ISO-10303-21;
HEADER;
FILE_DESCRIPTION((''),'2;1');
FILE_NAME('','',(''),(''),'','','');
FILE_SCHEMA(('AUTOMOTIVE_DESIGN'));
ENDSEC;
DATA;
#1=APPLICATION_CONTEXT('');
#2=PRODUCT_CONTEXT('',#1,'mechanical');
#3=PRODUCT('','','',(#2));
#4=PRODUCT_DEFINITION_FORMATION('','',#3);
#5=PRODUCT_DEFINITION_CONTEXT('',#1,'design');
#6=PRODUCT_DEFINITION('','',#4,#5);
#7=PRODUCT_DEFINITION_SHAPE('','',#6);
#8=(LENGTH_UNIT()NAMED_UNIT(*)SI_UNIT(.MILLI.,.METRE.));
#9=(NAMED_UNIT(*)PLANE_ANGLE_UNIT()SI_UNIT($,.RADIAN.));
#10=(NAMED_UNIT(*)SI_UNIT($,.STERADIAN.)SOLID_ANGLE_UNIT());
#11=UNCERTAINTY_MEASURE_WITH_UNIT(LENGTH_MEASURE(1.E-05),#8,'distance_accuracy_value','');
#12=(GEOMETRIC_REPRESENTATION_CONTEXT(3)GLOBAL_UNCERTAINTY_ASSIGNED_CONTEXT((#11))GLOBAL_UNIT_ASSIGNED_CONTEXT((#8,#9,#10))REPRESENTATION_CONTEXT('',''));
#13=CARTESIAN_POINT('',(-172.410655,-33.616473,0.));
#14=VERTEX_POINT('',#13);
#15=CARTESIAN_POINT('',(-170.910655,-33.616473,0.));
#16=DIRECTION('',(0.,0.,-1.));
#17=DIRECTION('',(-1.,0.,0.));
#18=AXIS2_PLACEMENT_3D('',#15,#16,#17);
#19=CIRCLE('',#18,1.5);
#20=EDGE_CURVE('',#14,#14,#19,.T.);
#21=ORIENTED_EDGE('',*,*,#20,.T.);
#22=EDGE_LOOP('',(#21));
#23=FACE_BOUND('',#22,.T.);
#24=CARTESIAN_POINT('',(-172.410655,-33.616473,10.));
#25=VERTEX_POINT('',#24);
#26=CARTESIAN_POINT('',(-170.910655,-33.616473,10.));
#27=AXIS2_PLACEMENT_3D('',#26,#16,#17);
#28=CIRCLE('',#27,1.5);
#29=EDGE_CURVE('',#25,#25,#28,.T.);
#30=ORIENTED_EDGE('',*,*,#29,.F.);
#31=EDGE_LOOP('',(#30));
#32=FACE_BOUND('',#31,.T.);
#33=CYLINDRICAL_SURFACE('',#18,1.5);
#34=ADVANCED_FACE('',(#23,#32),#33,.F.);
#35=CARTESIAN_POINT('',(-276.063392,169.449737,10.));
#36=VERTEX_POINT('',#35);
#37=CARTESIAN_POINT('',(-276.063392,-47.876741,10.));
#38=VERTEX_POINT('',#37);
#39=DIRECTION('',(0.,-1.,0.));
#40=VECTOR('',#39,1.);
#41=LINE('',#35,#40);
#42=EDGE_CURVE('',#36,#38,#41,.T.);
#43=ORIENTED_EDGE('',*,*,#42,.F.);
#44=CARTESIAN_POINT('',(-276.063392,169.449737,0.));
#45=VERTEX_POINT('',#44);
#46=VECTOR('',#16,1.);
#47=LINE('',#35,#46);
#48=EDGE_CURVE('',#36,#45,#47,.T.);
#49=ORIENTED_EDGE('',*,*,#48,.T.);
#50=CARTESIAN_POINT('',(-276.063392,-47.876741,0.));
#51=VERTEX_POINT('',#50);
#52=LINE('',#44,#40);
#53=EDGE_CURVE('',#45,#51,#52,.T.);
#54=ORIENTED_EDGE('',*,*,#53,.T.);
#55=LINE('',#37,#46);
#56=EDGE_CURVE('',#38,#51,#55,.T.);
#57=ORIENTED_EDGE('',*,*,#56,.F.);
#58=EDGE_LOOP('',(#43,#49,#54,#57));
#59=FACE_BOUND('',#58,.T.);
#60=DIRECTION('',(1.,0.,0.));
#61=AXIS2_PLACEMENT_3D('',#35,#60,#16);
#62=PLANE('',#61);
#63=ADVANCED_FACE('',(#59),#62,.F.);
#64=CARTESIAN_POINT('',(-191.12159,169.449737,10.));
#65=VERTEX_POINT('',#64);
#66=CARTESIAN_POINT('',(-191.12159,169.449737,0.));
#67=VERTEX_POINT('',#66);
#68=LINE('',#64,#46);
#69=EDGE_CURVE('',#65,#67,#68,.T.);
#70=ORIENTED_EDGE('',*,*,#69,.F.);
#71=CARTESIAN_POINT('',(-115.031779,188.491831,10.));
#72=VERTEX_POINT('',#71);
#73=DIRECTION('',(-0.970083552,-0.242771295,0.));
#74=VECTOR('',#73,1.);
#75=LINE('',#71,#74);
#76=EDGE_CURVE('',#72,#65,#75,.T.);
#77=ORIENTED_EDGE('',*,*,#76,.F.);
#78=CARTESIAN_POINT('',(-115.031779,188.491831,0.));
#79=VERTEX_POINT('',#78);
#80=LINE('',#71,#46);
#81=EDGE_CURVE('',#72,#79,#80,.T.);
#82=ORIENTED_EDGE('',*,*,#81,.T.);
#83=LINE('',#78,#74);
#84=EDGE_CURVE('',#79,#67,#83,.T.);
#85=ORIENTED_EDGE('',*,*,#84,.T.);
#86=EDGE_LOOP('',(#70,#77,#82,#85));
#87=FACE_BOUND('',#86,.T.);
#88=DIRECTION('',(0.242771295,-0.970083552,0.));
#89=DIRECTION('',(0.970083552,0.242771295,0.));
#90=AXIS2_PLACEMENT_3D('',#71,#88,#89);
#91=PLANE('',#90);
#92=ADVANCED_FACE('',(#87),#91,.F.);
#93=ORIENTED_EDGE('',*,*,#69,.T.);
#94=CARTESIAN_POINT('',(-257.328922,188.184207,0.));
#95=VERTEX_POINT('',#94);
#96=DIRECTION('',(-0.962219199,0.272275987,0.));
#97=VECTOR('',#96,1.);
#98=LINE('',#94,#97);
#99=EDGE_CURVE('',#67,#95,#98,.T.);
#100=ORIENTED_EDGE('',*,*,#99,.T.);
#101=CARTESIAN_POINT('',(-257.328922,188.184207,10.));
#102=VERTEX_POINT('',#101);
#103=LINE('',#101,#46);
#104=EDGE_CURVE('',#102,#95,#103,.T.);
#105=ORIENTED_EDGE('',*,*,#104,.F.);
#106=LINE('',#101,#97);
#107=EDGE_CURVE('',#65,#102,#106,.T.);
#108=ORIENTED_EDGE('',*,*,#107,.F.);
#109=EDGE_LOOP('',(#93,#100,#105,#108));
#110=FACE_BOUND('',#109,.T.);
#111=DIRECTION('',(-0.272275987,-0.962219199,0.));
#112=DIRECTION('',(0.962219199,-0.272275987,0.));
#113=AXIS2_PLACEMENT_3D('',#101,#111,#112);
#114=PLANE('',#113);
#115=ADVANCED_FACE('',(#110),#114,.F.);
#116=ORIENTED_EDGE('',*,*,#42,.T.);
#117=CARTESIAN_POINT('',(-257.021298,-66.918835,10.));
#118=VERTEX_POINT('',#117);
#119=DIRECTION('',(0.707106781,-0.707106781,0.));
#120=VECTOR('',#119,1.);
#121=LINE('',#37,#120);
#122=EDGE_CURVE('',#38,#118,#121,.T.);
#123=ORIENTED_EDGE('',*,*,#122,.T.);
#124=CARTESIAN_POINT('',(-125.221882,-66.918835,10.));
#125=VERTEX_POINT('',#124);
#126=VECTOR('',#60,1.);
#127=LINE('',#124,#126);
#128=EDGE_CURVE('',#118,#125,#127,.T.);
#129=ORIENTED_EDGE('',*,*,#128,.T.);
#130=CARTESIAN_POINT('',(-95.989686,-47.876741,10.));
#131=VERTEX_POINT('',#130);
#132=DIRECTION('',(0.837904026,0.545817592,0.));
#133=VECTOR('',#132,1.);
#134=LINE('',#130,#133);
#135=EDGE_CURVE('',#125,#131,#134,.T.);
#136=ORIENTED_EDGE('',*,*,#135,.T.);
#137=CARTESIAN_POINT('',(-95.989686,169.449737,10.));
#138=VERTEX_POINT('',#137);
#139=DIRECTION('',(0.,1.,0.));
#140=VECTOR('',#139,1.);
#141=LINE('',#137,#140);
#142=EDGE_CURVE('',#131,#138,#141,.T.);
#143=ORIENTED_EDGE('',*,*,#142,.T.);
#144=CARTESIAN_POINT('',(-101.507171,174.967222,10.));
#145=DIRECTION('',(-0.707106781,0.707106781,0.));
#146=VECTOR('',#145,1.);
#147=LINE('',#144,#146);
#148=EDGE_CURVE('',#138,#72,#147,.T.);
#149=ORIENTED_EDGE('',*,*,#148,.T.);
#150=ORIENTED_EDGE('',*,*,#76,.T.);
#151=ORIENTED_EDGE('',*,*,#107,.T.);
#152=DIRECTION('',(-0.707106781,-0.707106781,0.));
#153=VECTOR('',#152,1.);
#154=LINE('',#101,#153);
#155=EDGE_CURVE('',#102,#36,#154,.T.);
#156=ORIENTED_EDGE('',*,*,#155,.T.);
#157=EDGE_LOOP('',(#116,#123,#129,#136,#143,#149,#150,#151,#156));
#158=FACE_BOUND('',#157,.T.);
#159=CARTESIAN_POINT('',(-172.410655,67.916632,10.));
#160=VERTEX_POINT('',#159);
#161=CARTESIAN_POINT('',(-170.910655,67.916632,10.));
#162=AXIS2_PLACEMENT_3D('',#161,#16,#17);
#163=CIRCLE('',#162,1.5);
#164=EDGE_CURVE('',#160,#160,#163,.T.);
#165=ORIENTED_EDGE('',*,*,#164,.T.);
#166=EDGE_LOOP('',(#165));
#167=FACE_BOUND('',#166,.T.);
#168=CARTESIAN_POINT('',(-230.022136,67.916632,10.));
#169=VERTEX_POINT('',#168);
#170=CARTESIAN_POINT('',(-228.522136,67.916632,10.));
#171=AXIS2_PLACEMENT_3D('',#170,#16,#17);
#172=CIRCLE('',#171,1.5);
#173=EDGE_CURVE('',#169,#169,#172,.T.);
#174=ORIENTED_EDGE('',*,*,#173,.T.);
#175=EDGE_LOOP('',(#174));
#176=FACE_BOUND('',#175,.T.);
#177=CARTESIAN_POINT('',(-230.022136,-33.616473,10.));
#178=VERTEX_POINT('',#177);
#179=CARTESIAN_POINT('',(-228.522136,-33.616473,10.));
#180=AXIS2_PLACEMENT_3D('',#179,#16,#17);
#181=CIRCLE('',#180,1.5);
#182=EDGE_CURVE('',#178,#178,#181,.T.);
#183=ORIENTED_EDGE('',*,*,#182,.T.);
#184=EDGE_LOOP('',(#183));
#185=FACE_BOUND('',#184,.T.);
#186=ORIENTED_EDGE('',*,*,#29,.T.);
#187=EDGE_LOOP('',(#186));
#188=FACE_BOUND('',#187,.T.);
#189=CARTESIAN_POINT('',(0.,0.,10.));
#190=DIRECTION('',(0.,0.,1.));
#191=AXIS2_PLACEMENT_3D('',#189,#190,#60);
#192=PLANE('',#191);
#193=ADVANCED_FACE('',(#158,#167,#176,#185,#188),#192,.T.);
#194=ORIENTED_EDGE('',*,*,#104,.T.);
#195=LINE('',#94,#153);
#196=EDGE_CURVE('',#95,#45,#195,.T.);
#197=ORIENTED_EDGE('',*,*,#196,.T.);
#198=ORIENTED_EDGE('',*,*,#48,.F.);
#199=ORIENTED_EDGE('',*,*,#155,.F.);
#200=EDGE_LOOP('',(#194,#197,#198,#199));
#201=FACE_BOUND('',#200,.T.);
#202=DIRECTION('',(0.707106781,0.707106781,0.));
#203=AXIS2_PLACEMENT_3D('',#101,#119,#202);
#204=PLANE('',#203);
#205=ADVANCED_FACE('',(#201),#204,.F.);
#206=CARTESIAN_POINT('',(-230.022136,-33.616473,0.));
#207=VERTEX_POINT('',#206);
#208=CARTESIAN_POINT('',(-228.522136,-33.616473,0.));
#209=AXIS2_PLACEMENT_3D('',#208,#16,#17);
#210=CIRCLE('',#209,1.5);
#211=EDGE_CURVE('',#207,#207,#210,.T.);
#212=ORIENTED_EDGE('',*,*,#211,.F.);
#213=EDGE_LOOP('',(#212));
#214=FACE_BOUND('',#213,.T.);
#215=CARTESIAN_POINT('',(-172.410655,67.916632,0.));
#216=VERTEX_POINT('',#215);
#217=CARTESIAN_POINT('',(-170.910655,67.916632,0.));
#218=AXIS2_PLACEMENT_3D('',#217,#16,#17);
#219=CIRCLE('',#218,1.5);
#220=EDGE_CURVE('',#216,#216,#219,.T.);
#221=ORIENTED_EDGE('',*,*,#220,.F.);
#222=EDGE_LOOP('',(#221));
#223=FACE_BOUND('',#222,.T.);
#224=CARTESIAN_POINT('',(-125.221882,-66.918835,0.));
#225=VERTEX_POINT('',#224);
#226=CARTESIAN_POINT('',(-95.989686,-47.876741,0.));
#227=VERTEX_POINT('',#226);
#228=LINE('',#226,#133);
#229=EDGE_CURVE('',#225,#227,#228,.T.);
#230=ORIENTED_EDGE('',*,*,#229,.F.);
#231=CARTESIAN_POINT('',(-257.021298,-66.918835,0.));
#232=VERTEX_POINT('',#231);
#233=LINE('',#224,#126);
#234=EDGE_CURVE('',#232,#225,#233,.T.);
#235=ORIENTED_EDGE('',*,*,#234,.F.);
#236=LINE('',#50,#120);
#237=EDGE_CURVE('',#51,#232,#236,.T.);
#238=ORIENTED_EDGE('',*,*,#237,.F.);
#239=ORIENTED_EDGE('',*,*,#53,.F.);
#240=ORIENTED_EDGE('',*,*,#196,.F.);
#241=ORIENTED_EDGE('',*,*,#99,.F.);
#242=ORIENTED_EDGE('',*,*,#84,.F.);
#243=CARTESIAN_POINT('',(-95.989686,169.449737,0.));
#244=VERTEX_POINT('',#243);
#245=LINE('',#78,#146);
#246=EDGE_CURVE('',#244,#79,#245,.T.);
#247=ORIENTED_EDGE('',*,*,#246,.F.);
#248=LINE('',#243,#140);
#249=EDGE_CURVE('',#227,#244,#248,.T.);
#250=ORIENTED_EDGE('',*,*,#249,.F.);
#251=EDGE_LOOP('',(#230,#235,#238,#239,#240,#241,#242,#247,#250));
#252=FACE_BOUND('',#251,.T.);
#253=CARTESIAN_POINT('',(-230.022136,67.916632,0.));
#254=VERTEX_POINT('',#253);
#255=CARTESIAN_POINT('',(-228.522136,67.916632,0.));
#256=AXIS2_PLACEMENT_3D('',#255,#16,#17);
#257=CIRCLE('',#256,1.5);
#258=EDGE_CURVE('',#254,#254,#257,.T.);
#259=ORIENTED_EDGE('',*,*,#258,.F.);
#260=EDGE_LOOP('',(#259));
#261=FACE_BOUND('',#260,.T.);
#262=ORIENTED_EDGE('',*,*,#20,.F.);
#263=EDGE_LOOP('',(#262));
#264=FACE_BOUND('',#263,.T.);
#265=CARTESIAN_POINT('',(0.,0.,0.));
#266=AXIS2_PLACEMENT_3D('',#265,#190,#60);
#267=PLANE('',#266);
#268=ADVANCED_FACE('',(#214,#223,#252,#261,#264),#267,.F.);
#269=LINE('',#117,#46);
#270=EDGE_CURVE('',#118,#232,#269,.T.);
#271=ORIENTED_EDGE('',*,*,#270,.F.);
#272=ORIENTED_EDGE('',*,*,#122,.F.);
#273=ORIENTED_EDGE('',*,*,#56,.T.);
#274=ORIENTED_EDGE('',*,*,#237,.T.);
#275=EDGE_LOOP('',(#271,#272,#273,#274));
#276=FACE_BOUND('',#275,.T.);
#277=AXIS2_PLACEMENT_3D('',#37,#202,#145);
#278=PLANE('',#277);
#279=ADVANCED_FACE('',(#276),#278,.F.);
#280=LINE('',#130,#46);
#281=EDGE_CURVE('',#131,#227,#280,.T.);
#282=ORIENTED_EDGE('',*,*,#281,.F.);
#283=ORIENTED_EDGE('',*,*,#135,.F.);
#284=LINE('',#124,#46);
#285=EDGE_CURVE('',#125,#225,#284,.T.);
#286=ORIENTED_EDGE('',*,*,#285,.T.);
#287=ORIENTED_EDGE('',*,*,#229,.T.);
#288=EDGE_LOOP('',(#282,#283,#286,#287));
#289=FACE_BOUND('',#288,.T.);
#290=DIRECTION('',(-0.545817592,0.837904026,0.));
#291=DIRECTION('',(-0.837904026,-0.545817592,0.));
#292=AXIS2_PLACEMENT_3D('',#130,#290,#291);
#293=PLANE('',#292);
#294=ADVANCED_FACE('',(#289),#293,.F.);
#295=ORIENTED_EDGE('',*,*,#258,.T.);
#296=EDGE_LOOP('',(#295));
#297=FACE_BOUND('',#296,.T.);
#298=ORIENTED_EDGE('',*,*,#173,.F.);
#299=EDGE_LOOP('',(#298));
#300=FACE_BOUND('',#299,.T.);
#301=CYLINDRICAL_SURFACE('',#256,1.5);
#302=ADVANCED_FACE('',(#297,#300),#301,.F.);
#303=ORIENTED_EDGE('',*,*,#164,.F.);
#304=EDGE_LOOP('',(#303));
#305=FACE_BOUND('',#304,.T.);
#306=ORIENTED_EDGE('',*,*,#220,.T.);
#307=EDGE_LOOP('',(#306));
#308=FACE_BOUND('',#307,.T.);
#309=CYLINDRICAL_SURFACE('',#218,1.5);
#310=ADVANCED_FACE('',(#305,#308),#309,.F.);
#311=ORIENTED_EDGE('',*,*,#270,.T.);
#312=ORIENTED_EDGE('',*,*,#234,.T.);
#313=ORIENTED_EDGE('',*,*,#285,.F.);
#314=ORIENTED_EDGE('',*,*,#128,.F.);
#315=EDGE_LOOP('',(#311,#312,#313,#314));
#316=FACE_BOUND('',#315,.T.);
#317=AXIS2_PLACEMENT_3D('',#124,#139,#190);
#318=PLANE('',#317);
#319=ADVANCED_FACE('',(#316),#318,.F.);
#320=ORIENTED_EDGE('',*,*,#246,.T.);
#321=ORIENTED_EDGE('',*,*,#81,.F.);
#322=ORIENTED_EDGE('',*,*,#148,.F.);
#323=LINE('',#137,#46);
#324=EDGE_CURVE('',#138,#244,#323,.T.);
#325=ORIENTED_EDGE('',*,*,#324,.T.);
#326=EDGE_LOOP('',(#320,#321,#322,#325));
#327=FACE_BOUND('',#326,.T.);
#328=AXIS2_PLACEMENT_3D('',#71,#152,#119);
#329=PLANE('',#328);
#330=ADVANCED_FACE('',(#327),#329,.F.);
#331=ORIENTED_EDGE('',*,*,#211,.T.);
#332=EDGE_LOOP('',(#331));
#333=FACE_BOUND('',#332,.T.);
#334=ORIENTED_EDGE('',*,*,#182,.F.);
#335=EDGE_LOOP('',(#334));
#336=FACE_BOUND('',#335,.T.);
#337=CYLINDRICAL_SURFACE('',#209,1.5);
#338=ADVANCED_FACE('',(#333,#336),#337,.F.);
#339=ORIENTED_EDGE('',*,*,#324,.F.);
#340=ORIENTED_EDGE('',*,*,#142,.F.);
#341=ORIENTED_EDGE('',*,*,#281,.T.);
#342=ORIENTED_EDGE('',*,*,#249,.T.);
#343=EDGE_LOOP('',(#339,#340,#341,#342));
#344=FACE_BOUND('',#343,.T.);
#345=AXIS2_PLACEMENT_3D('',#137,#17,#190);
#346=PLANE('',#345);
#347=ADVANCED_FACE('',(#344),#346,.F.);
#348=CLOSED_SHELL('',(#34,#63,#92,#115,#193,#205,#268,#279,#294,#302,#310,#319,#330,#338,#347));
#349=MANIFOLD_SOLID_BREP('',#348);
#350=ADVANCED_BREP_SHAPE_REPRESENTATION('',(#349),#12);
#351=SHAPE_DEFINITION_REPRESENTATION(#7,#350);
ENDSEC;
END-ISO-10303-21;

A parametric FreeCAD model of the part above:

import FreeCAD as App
import Part
import Sketcher

V = App.Vector
Q = App.Units.Quantity


def add_polygon(sketch, points):
    """Adds a closed chain of lines whose ends are joined by coincident constraints."""
    first, n = sketch.GeometryCount, len(points)
    for a, b in zip(points, points[1:] + points[:1]):
        sketch.addGeometry(Part.LineSegment(App.Vector(*a, 0), App.Vector(*b, 0)), False)
    for i in range(n):
        sketch.addConstraint(Sketcher.Constraint("Coincident", first + i, 2, first + (i + 1) % n, 1))

doc = App.newDocument("Part")
body = doc.addObject("PartDesign::Body", "Body")

sketch1 = body.newObject("Sketcher::SketchObject", "Sketch")
sketch1.AttachmentSupport = (doc.getObject("XY_Plane"), [""])
sketch1.MapMode = "FlatFace"
add_polygon(sketch1, [(-276, 169), (-276, -48), (-257, -67), (-125, -67), (-96, -48), (-96, 169), (-115, 188), (-191, 169), (-257, 188)])
sketch1.addConstraint([
    Sketcher.Constraint("Vertical", 0),
    Sketcher.Constraint("Horizontal", 2),
    Sketcher.Constraint("Vertical", 4),
    Sketcher.Constraint("Parallel", 1, 5),
    Sketcher.Constraint("Perpendicular", 5, 8),
    Sketcher.Constraint("Horizontal", 0, 2, 3, 2),
    Sketcher.Constraint("Horizontal", 4, 2, 6, 2),
    Sketcher.Constraint("Horizontal", 6, 2, 8, 2),
    Sketcher.Constraint("Equal", 1, 5),
    Sketcher.Constraint("Angle", 1, Q("-45 deg")),
    Sketcher.Constraint("DistanceX", 1, 2, -1, 1, 257.021298),
    Sketcher.Constraint("DistanceX", 0, 2, 6, 2, 84.941802),
    Sketcher.Constraint("Distance", 8, 26.494542),
    Sketcher.Constraint("DistanceX", 2, 1, 2, 2, 131.799417),
    Sketcher.Constraint("DistanceY", 0, 2, 0, 1, 217.326478),
    Sketcher.Constraint("DistanceY", 0, 2, -1, 1, 47.876741),
    Sketcher.Constraint("DistanceX", 5, 2, -1, 1, 115.031779),
    Sketcher.Constraint("DistanceY", -1, 1, 5, 2, 188.491831),
])
pad1 = body.newObject("PartDesign::Pad", "Pad")
pad1.Profile = sketch1
pad1.Length = 10

sketch2 = body.newObject("Sketcher::SketchObject", "Sketch001")
sketch2.AttachmentSupport = (doc.getObject("XY_Plane"), [""])
sketch2.MapMode = "FlatFace"
sketch2.addGeometry([
    Part.Circle(V(-170.9, 67.9, 0), V(0, 0, 1), 1.5),
    Part.Circle(V(-228.5, 67.9, 0), V(0, 0, 1), 1.5),
    Part.Circle(V(-228.5, -33.6, 0), V(0, 0, 1), 1.5),
    Part.Circle(V(-170.9, -33.6, 0), V(0, 0, 1), 1.5),
], False)
sketch2.addConstraint([
    Sketcher.Constraint("Equal", 0, 1),
    Sketcher.Constraint("Equal", 1, 2),
    Sketcher.Constraint("Equal", 2, 3),
    Sketcher.Constraint("Horizontal", 0, 3, 1, 3),
    Sketcher.Constraint("Horizontal", 2, 3, 3, 3),
    Sketcher.Constraint("Vertical", 1, 3, 2, 3),
    Sketcher.Constraint("Vertical", 0, 3, 3, 3),
    Sketcher.Constraint("Diameter", 0, 3.0),
    Sketcher.Constraint("DistanceY", -1, 1, 0, 3, 67.916632),
    Sketcher.Constraint("DistanceX", 1, 3, 0, 3, 57.611481),
    Sketcher.Constraint("DistanceX", 0, 3, -1, 1, 170.910655),
    Sketcher.Constraint("DistanceY", 2, 3, -1, 1, 33.616473),
])
doc.recompute()
hole = body.newObject("PartDesign::Hole", "Hole")
hole.Profile = sketch2
hole.ThreadType = "None"
hole.Diameter = 3
hole.DepthType = "ThroughAll"
hole.Reversed = True

doc.recompute()
